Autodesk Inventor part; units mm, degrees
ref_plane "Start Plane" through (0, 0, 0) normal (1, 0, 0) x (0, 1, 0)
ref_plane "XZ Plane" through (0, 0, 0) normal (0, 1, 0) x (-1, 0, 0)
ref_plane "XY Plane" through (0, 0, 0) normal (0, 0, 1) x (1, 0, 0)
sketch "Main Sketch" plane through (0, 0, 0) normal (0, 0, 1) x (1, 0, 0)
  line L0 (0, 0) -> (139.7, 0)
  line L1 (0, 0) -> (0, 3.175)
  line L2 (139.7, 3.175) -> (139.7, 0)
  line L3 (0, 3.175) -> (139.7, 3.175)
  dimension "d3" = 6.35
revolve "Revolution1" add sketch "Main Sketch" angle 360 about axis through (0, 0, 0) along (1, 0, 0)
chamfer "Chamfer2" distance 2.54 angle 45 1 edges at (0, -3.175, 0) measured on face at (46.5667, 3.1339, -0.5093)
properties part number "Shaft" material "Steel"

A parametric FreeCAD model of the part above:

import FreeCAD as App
import Part
import Sketcher
from FreeCAD import Vector
Q = App.Units.Quantity


def edges_at(feature, points):
    """Names of the edges that pass closest to the given points."""
    edges = feature.Shape.Edges
    near = lambda p: min(range(len(edges)), key=lambda i: edges[i].distToShape(Part.Vertex(*p))[0])
    return sorted({f"Edge{near(p) + 1}" for p in points})


def add_polygon(sketch, points):
    """Adds a closed chain of lines whose ends are joined by coincident constraints."""
    first, n = sketch.GeometryCount, len(points)
    for a, b in zip(points, points[1:] + points[:1]):
        sketch.addGeometry(Part.LineSegment(App.Vector(*a, 0), App.Vector(*b, 0)), False)
    for i in range(n):
        sketch.addConstraint(Sketcher.Constraint("Coincident", first + i, 2, first + (i + 1) % n, 1))

doc = App.newDocument("Part")
params = doc.addObject("Spreadsheet::Sheet", "Params")
for row, (alias, value) in enumerate([
    ("sketch1_width", "5.5 in"),
    ("sketch1_height", "0.125 in"),
    ("revolution_angle", "360 deg"),
    ("chamfer_size", "0.1 in"),
], start=1):
    params.set(f"A{row}", alias)
    params.set(f"B{row}", "=" + value)
    params.setAlias(f"B{row}", alias)

body = doc.addObject("PartDesign::Body", "Body")

# Sketch on XY plane
sketch1 = doc.addObject("Sketcher::SketchObject", "Sketch")
body.addObject(sketch1)
sketch1.AttachmentSupport = (doc.XY_Plane, [""])
sketch1.MapMode = "FlatFace"
add_polygon(sketch1, [(0, 3.2), (0, 0), (139.7, 0), (139.7, 3.2)])  # lines 0-3
sketch1.addConstraint(Sketcher.Constraint("Vertical", 0))
sketch1.addConstraint(Sketcher.Constraint("Horizontal", 1))
sketch1.addConstraint(Sketcher.Constraint("Vertical", 2))
sketch1.addConstraint(Sketcher.Constraint("Horizontal", 3))
sketch1.addConstraint(Sketcher.Constraint("Coincident", 0, 2, -1, 1))
sketch1.addConstraint(Sketcher.Constraint("DistanceX", 1, 1, 1, 2, Q("5.5 in")))
sketch1.addConstraint(Sketcher.Constraint("DistanceY", 0, 2, 0, 1, Q("0.125 in")))
sketch1.setExpression("Constraints[9]", "Params.sketch1_width")
sketch1.setExpression("Constraints[10]", "Params.sketch1_height")
revolution = doc.addObject("PartDesign::Revolution", "Revolution")
body.addObject(revolution)
revolution.Profile = sketch1
revolution.ReferenceAxis = (sketch1, ["H_Axis"])
revolution.setExpression("Angle", "Params.revolution_angle")
doc.recompute()

chamfer = doc.addObject("PartDesign::Chamfer", "Chamfer")
body.addObject(chamfer)
chamfer.Base = (revolution, edges_at(revolution, [(0, -3.175, 0)]))
chamfer.setExpression("Size", "Params.chamfer_size")

doc.recompute()
